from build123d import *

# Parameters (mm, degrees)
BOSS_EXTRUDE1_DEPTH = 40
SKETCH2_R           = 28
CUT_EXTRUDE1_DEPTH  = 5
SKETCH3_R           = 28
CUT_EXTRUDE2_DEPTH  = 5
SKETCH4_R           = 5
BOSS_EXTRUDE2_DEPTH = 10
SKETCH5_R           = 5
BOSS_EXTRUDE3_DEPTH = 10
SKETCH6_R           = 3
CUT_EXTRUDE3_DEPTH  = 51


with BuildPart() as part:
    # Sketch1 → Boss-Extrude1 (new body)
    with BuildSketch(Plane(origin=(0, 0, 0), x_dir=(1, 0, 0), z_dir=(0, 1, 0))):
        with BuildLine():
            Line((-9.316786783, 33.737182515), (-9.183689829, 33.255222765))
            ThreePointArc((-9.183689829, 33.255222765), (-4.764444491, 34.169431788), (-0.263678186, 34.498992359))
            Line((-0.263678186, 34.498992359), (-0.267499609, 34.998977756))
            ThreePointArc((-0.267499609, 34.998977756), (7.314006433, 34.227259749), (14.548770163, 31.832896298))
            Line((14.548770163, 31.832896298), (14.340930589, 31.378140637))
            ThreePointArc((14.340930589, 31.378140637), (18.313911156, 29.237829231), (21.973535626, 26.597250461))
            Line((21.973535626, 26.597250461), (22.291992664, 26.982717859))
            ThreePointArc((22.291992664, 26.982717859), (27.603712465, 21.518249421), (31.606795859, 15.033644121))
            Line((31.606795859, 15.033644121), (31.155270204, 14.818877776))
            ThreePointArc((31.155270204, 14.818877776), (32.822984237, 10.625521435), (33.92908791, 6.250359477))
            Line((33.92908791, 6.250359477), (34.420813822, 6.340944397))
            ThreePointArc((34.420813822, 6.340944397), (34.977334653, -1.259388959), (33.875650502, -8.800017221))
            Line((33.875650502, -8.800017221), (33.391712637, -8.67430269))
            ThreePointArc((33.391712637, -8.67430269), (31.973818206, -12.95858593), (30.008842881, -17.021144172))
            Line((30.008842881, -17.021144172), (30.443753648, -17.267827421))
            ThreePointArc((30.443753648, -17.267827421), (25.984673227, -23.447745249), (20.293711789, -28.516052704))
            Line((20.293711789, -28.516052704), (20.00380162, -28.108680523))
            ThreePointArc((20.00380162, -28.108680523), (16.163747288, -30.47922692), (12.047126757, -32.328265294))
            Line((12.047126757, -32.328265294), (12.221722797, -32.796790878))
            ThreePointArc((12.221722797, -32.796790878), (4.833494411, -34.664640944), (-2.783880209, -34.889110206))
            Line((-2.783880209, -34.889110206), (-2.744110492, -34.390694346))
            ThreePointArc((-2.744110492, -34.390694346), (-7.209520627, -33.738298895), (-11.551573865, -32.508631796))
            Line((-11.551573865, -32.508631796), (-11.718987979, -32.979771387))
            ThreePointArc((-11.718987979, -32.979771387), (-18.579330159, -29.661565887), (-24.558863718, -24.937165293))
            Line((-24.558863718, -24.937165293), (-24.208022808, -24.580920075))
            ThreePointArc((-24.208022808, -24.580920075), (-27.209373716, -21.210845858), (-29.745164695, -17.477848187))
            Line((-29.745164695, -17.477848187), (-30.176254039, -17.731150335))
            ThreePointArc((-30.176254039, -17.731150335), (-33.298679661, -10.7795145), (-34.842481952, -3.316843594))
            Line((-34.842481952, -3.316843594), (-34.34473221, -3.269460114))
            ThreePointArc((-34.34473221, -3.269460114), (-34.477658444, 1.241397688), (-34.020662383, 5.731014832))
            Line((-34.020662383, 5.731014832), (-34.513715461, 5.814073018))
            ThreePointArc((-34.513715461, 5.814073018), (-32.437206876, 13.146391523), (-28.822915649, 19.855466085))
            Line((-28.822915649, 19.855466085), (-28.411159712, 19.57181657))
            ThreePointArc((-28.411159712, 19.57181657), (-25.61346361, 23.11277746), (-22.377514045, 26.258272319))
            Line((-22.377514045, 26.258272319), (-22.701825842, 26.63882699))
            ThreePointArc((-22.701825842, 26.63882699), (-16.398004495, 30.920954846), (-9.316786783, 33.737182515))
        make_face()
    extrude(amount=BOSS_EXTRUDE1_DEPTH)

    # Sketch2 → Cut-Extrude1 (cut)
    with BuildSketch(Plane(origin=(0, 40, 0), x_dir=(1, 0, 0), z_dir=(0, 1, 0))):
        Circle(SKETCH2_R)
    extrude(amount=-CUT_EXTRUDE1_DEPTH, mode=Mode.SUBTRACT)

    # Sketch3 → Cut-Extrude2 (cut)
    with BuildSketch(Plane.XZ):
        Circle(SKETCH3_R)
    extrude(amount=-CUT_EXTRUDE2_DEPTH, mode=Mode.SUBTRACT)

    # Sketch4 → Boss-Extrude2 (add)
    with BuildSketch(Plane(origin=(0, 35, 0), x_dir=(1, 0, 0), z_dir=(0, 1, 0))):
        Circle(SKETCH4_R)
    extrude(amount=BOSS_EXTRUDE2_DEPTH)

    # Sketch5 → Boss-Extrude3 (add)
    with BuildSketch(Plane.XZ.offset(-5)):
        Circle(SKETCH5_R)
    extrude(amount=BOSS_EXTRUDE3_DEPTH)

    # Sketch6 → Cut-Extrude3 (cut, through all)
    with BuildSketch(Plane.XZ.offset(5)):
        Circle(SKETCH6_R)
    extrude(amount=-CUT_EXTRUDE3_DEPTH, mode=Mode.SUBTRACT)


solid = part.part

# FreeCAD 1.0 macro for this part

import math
import FreeCAD as App
import Part
import Sketcher

V = App.Vector
Q = App.Units.Quantity

doc = App.newDocument("Part")
body = doc.addObject("PartDesign::Body", "Body")

# Sketch on XZ plane
sketch1 = body.newObject("Sketcher::SketchObject", "Sketch")
sketch1.AttachmentSupport = (doc.getObject("XZ_Plane"), [""])
sketch1.MapMode = "FlatFace"
sketch1.addGeometry([
    Part.LineSegment(V(-9.18, -33.26, 0), V(-9.32, -33.74, 0)),  # 0
    Part.ArcOfCircle(Part.Circle(V(0, 0, 0), V(0, 0, 1), 35), math.radians(-130), math.radians(-105)),  # 1
    Part.LineSegment(V(-22.7, -26.64, 0), V(-22.38, -26.26, 0)),  # 2
    Part.ArcOfCircle(Part.Circle(V(0, 0, 0), V(0, 0, 1), 34.5), math.radians(-145.44), math.radians(-130.44)),  # 3
    Part.LineSegment(V(-28.41, -19.57, 0), V(-28.82, -19.86, 0)),  # 4
    Part.ArcOfCircle(Part.Circle(V(0, 0, 0), V(0, 0, 1), 35), math.radians(-170), math.radians(-145)),  # 5
    Part.LineSegment(V(-34.51, -5.81, 0), V(-34.02, -5.73, 0)),  # 6
    Part.ArcOfCircle(Part.Circle(V(0, 0, 0), V(0, 0, 1), 34.5), math.radians(174.56), math.radians(189.56)),  # 7
    Part.LineSegment(V(-34.34, 3.27, 0), V(-34.84, 3.32, 0)),  # 8
    Part.ArcOfCircle(Part.Circle(V(0, 0, 0), V(0, 0, 1), 35), math.radians(150), math.radians(175)),  # 9
    Part.LineSegment(V(-30.18, 17.73, 0), V(-29.75, 17.48, 0)),  # 10
    Part.ArcOfCircle(Part.Circle(V(0, 0, 0), V(0, 0, 1), 34.5), math.radians(134.56), math.radians(149.56)),  # 11
    Part.LineSegment(V(-24.21, 24.58, 0), V(-24.56, 24.94, 0)),  # 12
    Part.ArcOfCircle(Part.Circle(V(0, 0, 0), V(0, 0, 1), 35), math.radians(110), math.radians(135)),  # 13
    Part.LineSegment(V(-11.72, 32.98, 0), V(-11.55, 32.51, 0)),  # 14
    Part.ArcOfCircle(Part.Circle(V(0, 0, 0), V(0, 0, 1), 34.5), math.radians(94.56), math.radians(109.56)),  # 15
    Part.LineSegment(V(-2.74, 34.39, 0), V(-2.78, 34.89, 0)),  # 16
    Part.ArcOfCircle(Part.Circle(V(0, 0, 0), V(0, 0, 1), 35), math.radians(70), math.radians(95)),  # 17
    Part.LineSegment(V(12.22, 32.8, 0), V(12.05, 32.33, 0)),  # 18
    Part.ArcOfCircle(Part.Circle(V(0, 0, 0), V(0, 0, 1), 34.5), math.radians(54.56), math.radians(69.56)),  # 19
    Part.LineSegment(V(20, 28.11, 0), V(20.29, 28.52, 0)),  # 20
    Part.ArcOfCircle(Part.Circle(V(0, 0, 0), V(0, 0, 1), 35), math.radians(30), math.radians(55)),  # 21
    Part.LineSegment(V(30.44, 17.27, 0), V(30.01, 17.02, 0)),  # 22
    Part.ArcOfCircle(Part.Circle(V(0, 0, 0), V(0, 0, 1), 34.5), math.radians(14.56), math.radians(29.56)),  # 23
    Part.LineSegment(V(33.39, 8.67, 0), V(33.88, 8.8, 0)),  # 24
    Part.ArcOfCircle(Part.Circle(V(0, 0, 0), V(0, 0, 1), 35), math.radians(-10), math.radians(15)),  # 25
    Part.LineSegment(V(34.42, -6.34, 0), V(33.93, -6.25, 0)),  # 26
    Part.ArcOfCircle(Part.Circle(V(0, 0, 0), V(0, 0, 1), 34.5), math.radians(-25.44), math.radians(-10.44)),  # 27
    Part.LineSegment(V(31.16, -14.82, 0), V(31.61, -15.03, 0)),  # 28
    Part.ArcOfCircle(Part.Circle(V(0, 0, 0), V(0, 0, 1), 35), math.radians(-50), math.radians(-25)),  # 29
    Part.LineSegment(V(22.29, -26.98, 0), V(21.97, -26.6, 0)),  # 30
    Part.ArcOfCircle(Part.Circle(V(0, 0, 0), V(0, 0, 1), 34.5), math.radians(-65.44), math.radians(-50.44)),  # 31
    Part.LineSegment(V(14.34, -31.38, 0), V(14.55, -31.83, 0)),  # 32
    Part.ArcOfCircle(Part.Circle(V(0, 0, 0), V(0, 0, 1), 35), math.radians(-90), math.radians(-65)),  # 33
    Part.LineSegment(V(-0.27, -35, 0), V(-0.26, -34.5, 0)),  # 34
    Part.ArcOfCircle(Part.Circle(V(0, 0, 0), V(0, 0, 1), 34.5), math.radians(-105.44), math.radians(-90.44)),  # 35
], False)
sketch1.addConstraint([
    Sketcher.Constraint("Coincident", 0, 2, 1, 2),
    Sketcher.Constraint("Coincident", 1, 1, 2, 1),
    Sketcher.Constraint("Coincident", 2, 2, 3, 2),
    Sketcher.Constraint("Coincident", 3, 1, 4, 1),
    Sketcher.Constraint("Coincident", 4, 2, 5, 2),
    Sketcher.Constraint("Coincident", 5, 1, 6, 1),
    Sketcher.Constraint("Coincident", 6, 2, 7, 2),
    Sketcher.Constraint("Coincident", 7, 1, 8, 1),
    Sketcher.Constraint("Coincident", 8, 2, 9, 2),
    Sketcher.Constraint("Coincident", 9, 1, 10, 1),
    Sketcher.Constraint("Coincident", 10, 2, 11, 2),
    Sketcher.Constraint("Coincident", 11, 1, 12, 1),
    Sketcher.Constraint("Coincident", 12, 2, 13, 2),
    Sketcher.Constraint("Coincident", 13, 1, 14, 1),
    Sketcher.Constraint("Coincident", 14, 2, 15, 2),
    Sketcher.Constraint("Coincident", 15, 1, 16, 1),
    Sketcher.Constraint("Coincident", 16, 2, 17, 2),
    Sketcher.Constraint("Coincident", 17, 1, 18, 1),
    Sketcher.Constraint("Coincident", 18, 2, 19, 2),
    Sketcher.Constraint("Coincident", 19, 1, 20, 1),
    Sketcher.Constraint("Coincident", 20, 2, 21, 2),
    Sketcher.Constraint("Coincident", 21, 1, 22, 1),
    Sketcher.Constraint("Coincident", 22, 2, 23, 2),
    Sketcher.Constraint("Coincident", 23, 1, 24, 1),
    Sketcher.Constraint("Coincident", 24, 2, 25, 2),
    Sketcher.Constraint("Coincident", 25, 1, 26, 1),
    Sketcher.Constraint("Coincident", 26, 2, 27, 2),
    Sketcher.Constraint("Coincident", 27, 1, 28, 1),
    Sketcher.Constraint("Coincident", 28, 2, 29, 2),
    Sketcher.Constraint("Coincident", 29, 1, 30, 1),
    Sketcher.Constraint("Coincident", 30, 2, 31, 2),
    Sketcher.Constraint("Coincident", 31, 1, 32, 1),
    Sketcher.Constraint("Coincident", 32, 2, 33, 2),
    Sketcher.Constraint("Coincident", 33, 1, 34, 1),
    Sketcher.Constraint("Coincident", 34, 2, 35, 2),
    Sketcher.Constraint("Coincident", 35, 1, 0, 1),
    Sketcher.Constraint("Coincident", 1, 3, -1, 1),
    Sketcher.Constraint("Coincident", 3, 3, -1, 1),
    Sketcher.Constraint("Coincident", 5, 3, -1, 1),
    Sketcher.Constraint("Coincident", 7, 3, -1, 1),
    Sketcher.Constraint("Coincident", 9, 3, -1, 1),
    Sketcher.Constraint("Coincident", 11, 3, -1, 1),
    Sketcher.Constraint("Coincident", 13, 3, -1, 1),
    Sketcher.Constraint("Coincident", 15, 3, -1, 1),
    Sketcher.Constraint("Coincident", 17, 3, -1, 1),
    Sketcher.Constraint("Coincident", 19, 3, -1, 1),
    Sketcher.Constraint("Coincident", 21, 3, -1, 1),
    Sketcher.Constraint("Coincident", 23, 3, -1, 1),
    Sketcher.Constraint("Coincident", 25, 3, -1, 1),
    Sketcher.Constraint("Coincident", 27, 3, -1, 1),
    Sketcher.Constraint("Coincident", 29, 3, -1, 1),
    Sketcher.Constraint("Coincident", 31, 3, -1, 1),
    Sketcher.Constraint("Coincident", 33, 3, -1, 1),
    Sketcher.Constraint("Coincident", 35, 3, -1, 1),
    Sketcher.Constraint("Equal", 1, 5),
    Sketcher.Constraint("Equal", 3, 7),
    Sketcher.Constraint("Equal", 5, 9),
    Sketcher.Constraint("Equal", 7, 11),
    Sketcher.Constraint("Equal", 9, 13),
    Sketcher.Constraint("Equal", 11, 15),
    Sketcher.Constraint("Equal", 13, 17),
    Sketcher.Constraint("Equal", 15, 19),
    Sketcher.Constraint("Equal", 17, 21),
    Sketcher.Constraint("Equal", 19, 23),
    Sketcher.Constraint("Equal", 21, 25),
    Sketcher.Constraint("Equal", 23, 27),
    Sketcher.Constraint("Equal", 25, 29),
    Sketcher.Constraint("Equal", 27, 31),
    Sketcher.Constraint("Equal", 29, 33),
    Sketcher.Constraint("Equal", 31, 35),
    Sketcher.Constraint("Radius", 1, Q("35 mm")),
    Sketcher.Constraint("Radius", 3, Q("34.5 mm")),
    Sketcher.Constraint("DistanceX", 20, 2, 23, 1, Q("13.098001 mm")),
    Sketcher.Constraint("DistanceX", -1, 1, 19, 1, Q("20.003802 mm")),
    Sketcher.Constraint("DistanceX", 33, 1, -1, 1, Q("0.2675 mm")),
    Sketcher.Constraint("DistanceX", 4, 2, 2, 2, Q("6.445402 mm")),
    Sketcher.Constraint("DistanceX", 5, 1, 4, 2, Q("5.6908 mm")),
    Sketcher.Constraint("DistanceY", 2, 2, 5, 1, Q("20.444199 mm")),
    Sketcher.Constraint("DistanceY", 3, 1, 6, 2, Q("13.840802 mm")),
    Sketcher.Constraint("DistanceX", 10, 2, 12, 2, Q("5.186301 mm")),
    Sketcher.Constraint("DistanceX", 14, 2, 18, 2, Q("23.598701 mm")),
    Sketcher.Constraint("DistanceX", 23, 1, 25, 1, Q("1.029101 mm")),
    Sketcher.Constraint("DistanceY", 28, 2, 25, 1, Q("8.6927 mm")),
    Sketcher.Constraint("DistanceX", 32, 2, 27, 1, Q("16.6065 mm")),
    Sketcher.Constraint("DistanceX", 3, 1, -1, 1, Q("28.41116 mm")),
    Sketcher.Constraint("DistanceY", -1, 1, 7, 1, Q("3.26946 mm")),
    Sketcher.Constraint("DistanceX", 8, 2, -1, 1, Q("34.842482 mm")),
    Sketcher.Constraint("DistanceY", -1, 1, 9, 1, Q("17.73115 mm")),
    Sketcher.Constraint("DistanceY", -1, 1, 10, 2, Q("17.477848 mm")),
    Sketcher.Constraint("DistanceY", -1, 1, 11, 1, Q("24.58092 mm")),
    Sketcher.Constraint("DistanceY", -1, 1, 13, 1, Q("32.979771 mm")),
    Sketcher.Constraint("DistanceY", -1, 1, 14, 2, Q("32.508632 mm")),
    Sketcher.Constraint("DistanceX", 15, 1, -1, 1, Q("2.74411 mm")),
    Sketcher.Constraint("DistanceX", 16, 2, -1, 1, Q("2.78388 mm")),
    Sketcher.Constraint("DistanceY", -1, 1, 17, 1, Q("32.796791 mm")),
    Sketcher.Constraint("DistanceX", -1, 1, 20, 2, Q("20.293712 mm")),
    Sketcher.Constraint("DistanceX", -1, 1, 24, 2, Q("33.875651 mm")),
    Sketcher.Constraint("DistanceY", 26, 2, -1, 1, Q("6.250359 mm")),
    Sketcher.Constraint("DistanceX", -1, 1, 27, 1, Q("31.15527 mm")),
    Sketcher.Constraint("DistanceY", 30, 2, -1, 1, Q("26.59725 mm")),
    Sketcher.Constraint("DistanceX", -1, 1, 31, 1, Q("14.340931 mm")),
    Sketcher.Constraint("DistanceX", 34, 2, -1, 1, Q("0.263678 mm")),
    Sketcher.Constraint("DistanceX", 35, 1, -1, 1, Q("9.18369 mm")),
    Sketcher.Constraint("DistanceX", 1, 1, 0, 2, Q("13.385039 mm")),
    Sketcher.Constraint("DistanceX", 1, 1, 2, 2, Q("0.324312 mm")),
    Sketcher.Constraint("DistanceX", 20, 2, 21, 1, Q("10.150042 mm")),
    Sketcher.Constraint("DistanceX", 22, 2, 21, 1, Q("0.434911 mm")),
    Sketcher.Constraint("DistanceY", 29, 1, 27, 1, Q("12.16384 mm")),
])
pad1 = body.newObject("PartDesign::Pad", "Pad")
pad1.Profile = sketch1
pad1.Length = 40
pad1.Reversed = True

# Sketch on XZ plane
sketch2 = body.newObject("Sketcher::SketchObject", "Sketch001")
sketch2.AttachmentSupport = (doc.getObject("XZ_Plane"), [""])
sketch2.MapMode = "FlatFace"
sketch2.AttachmentOffset = App.Placement(V(0, 0, -40), App.Rotation())
sketch2.addGeometry(Part.Circle(V(0, 0, 0), V(0, 0, 1), 28), False)
sketch2.addConstraint([
    Sketcher.Constraint("Coincident", 0, 3, -1, 1),
    Sketcher.Constraint("Diameter", 0, Q("56 mm")),
])
pocket1 = body.newObject("PartDesign::Pocket", "Pocket")
pocket1.Profile = sketch2
pocket1.Length = 5
pocket1.Reversed = True

# Sketch on XZ plane
sketch3 = body.newObject("Sketcher::SketchObject", "Sketch002")
sketch3.AttachmentSupport = (doc.getObject("XZ_Plane"), [""])
sketch3.MapMode = "FlatFace"
sketch3.addGeometry(Part.Circle(V(0, 0, 0), V(0, 0, 1), 28), False)
sketch3.addConstraint([
    Sketcher.Constraint("Coincident", 0, 3, -1, 1),
    Sketcher.Constraint("Diameter", 0, Q("56 mm")),
])
pocket2 = body.newObject("PartDesign::Pocket", "Pocket001")
pocket2.Profile = sketch3
pocket2.Length = 5

# Sketch on XZ plane
sketch4 = body.newObject("Sketcher::SketchObject", "Sketch003")
sketch4.AttachmentSupport = (doc.getObject("XZ_Plane"), [""])
sketch4.MapMode = "FlatFace"
sketch4.AttachmentOffset = App.Placement(V(0, 0, -35), App.Rotation())
sketch4.addGeometry(Part.Circle(V(0, 0, 0), V(0, 0, 1), 5), False)
sketch4.addConstraint([
    Sketcher.Constraint("Coincident", 0, 3, -1, 1),
    Sketcher.Constraint("Diameter", 0, Q("10 mm")),
])
pad2 = body.newObject("PartDesign::Pad", "Pad001")
pad2.Profile = sketch4
pad2.Length = 10
pad2.Reversed = True

# Sketch on XZ plane
sketch5 = body.newObject("Sketcher::SketchObject", "Sketch004")
sketch5.AttachmentSupport = (doc.getObject("XZ_Plane"), [""])
sketch5.MapMode = "FlatFace"
sketch5.AttachmentOffset = App.Placement(V(0, 0, -5), App.Rotation())
sketch5.addGeometry(Part.Circle(V(0, 0, 0), V(0, 0, 1), 5), False)
sketch5.addConstraint([
    Sketcher.Constraint("Coincident", 0, 3, -1, 1),
    Sketcher.Constraint("Diameter", 0, Q("10 mm")),
])
pad3 = body.newObject("PartDesign::Pad", "Pad002")
pad3.Profile = sketch5
pad3.Length = 10

# Sketch on XZ plane
sketch6 = body.newObject("Sketcher::SketchObject", "Sketch005")
sketch6.AttachmentSupport = (doc.getObject("XZ_Plane"), [""])
sketch6.MapMode = "FlatFace"
sketch6.AttachmentOffset = App.Placement(V(0, 0, 5), App.Rotation())
sketch6.addGeometry(Part.Circle(V(0, 0, 0), V(0, 0, 1), 3), False)
sketch6.addConstraint([
    Sketcher.Constraint("Coincident", 0, 3, -1, 1),
    Sketcher.Constraint("Diameter", 0, Q("6 mm")),
])
pocket3 = body.newObject("PartDesign::Pocket", "Pocket002")
pocket3.Profile = sketch6
pocket3.Type = "ThroughAll"

doc.recompute()
